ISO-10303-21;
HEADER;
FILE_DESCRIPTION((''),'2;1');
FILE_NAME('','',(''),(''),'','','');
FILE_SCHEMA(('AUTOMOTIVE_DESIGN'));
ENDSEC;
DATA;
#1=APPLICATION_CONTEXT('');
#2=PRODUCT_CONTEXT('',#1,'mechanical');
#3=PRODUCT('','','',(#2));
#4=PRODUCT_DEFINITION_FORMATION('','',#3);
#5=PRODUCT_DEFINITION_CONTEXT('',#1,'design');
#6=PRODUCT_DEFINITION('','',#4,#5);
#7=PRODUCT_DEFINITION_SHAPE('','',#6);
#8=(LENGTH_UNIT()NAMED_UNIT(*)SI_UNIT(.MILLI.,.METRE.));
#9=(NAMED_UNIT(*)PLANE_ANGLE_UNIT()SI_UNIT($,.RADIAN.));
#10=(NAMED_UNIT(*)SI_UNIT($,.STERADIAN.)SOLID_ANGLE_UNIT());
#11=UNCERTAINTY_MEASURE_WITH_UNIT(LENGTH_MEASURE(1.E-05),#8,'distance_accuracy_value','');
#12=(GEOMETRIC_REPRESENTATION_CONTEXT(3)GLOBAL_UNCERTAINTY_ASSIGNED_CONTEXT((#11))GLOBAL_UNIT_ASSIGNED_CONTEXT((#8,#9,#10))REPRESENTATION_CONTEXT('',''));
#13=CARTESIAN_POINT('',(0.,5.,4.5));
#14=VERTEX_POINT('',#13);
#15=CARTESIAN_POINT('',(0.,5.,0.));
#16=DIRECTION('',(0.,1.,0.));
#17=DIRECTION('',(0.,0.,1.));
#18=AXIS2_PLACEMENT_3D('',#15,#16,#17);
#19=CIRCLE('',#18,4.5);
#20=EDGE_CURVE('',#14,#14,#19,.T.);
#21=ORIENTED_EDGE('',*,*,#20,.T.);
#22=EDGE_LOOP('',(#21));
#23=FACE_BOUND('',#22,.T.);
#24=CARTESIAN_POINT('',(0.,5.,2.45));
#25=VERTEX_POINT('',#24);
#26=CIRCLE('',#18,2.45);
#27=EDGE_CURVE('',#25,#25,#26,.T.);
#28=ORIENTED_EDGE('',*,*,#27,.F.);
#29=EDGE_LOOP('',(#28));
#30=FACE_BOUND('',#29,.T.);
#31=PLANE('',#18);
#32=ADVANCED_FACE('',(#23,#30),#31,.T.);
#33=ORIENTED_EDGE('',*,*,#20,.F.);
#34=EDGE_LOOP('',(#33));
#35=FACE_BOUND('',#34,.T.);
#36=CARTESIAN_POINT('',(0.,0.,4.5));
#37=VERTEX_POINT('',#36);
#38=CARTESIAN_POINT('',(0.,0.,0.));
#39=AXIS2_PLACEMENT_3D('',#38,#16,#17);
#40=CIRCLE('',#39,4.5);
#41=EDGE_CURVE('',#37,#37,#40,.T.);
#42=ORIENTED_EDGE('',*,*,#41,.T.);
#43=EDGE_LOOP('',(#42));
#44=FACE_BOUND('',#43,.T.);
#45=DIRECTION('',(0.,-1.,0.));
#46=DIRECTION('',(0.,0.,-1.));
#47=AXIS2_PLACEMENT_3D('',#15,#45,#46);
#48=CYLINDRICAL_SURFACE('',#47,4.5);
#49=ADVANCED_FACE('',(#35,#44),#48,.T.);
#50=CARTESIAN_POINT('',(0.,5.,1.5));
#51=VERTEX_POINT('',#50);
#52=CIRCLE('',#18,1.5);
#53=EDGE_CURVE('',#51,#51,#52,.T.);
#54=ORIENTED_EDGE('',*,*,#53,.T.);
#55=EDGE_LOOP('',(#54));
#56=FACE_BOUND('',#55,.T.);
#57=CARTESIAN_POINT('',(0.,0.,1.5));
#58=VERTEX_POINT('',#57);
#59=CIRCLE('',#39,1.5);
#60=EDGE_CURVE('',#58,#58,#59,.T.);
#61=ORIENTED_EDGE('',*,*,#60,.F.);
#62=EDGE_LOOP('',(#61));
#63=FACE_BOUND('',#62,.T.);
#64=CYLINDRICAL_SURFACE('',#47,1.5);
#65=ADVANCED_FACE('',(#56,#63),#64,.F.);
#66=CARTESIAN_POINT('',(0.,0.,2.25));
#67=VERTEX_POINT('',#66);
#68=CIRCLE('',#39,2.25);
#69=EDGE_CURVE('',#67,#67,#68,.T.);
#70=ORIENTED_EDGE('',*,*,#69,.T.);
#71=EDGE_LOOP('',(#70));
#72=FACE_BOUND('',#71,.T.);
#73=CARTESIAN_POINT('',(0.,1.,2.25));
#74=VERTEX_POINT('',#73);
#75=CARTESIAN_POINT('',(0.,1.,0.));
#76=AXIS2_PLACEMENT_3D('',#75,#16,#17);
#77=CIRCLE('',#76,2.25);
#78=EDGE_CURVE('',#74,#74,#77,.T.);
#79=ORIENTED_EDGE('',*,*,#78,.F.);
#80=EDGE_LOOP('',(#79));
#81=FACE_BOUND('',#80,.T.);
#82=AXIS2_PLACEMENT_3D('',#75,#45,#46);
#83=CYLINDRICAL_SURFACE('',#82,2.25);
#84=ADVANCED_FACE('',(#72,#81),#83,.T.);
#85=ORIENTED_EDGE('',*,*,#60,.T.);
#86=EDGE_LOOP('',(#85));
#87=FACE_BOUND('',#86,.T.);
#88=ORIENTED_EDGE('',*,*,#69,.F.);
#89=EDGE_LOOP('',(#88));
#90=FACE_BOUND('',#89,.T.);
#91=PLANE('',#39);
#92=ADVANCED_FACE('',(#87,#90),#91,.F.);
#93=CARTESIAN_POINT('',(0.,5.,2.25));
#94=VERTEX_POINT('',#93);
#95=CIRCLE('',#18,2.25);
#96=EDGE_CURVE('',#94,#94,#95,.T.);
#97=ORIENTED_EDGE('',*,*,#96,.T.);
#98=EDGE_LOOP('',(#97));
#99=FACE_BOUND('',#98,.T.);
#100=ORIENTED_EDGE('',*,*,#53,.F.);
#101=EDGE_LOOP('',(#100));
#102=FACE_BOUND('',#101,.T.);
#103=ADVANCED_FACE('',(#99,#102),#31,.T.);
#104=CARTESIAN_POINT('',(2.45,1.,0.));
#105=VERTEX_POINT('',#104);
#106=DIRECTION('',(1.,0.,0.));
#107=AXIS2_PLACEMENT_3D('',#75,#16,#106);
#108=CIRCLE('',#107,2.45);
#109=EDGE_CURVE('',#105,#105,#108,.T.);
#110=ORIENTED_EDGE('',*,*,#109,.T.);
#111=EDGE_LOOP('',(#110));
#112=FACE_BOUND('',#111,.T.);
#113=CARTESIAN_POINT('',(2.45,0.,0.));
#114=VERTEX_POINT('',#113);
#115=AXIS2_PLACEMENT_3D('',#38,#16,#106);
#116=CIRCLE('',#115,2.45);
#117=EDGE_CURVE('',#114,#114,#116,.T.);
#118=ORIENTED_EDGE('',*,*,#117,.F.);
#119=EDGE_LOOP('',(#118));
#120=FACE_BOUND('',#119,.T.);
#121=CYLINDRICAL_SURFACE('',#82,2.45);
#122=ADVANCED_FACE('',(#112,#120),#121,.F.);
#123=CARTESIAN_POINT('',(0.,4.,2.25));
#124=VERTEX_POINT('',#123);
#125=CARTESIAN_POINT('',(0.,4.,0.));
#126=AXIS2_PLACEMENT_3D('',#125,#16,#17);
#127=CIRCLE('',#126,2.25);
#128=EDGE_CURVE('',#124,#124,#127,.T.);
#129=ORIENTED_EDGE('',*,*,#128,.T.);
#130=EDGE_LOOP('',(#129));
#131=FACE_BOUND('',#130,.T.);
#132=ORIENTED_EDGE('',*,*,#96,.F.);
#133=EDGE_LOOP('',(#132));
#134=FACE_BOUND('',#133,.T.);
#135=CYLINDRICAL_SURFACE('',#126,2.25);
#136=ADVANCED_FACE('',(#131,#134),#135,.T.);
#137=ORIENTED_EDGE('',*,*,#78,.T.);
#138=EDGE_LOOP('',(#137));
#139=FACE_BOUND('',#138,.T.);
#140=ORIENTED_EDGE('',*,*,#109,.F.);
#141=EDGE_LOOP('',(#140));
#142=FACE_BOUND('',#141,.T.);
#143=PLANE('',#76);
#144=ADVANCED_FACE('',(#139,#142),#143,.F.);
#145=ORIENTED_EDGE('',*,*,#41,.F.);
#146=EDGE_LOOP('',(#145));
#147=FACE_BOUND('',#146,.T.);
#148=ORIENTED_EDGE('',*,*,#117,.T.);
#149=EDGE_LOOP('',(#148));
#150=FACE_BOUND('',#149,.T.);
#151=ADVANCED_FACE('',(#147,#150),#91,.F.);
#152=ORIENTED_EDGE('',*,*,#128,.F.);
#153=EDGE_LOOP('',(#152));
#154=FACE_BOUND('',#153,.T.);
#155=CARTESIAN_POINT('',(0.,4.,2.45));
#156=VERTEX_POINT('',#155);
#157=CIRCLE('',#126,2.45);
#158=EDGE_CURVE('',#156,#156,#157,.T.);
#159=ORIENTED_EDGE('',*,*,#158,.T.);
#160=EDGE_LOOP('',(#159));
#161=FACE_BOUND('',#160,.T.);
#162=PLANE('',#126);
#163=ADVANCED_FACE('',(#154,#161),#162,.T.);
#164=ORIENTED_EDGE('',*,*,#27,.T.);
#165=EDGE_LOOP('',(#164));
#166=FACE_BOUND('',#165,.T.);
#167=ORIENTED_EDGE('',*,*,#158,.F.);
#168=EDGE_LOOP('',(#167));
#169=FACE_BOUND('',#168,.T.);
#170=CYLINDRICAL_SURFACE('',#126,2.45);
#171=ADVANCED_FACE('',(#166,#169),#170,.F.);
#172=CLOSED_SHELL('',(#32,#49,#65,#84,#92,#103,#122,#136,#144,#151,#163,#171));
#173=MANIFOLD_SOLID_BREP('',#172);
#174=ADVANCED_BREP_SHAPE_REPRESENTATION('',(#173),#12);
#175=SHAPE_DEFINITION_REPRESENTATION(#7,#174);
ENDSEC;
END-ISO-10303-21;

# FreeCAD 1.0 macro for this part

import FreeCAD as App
import Part
import Sketcher

V = App.Vector
Q = App.Units.Quantity

doc = App.newDocument("Part")
params = doc.addObject("Spreadsheet::Sheet", "Params")
for row, (alias, value) in enumerate([
    ("sketch1_diameter", "9 mm"),
    ("sketch1_diameter2", "3 mm"),
    ("pad1_length", "5 mm"),
    ("sketch2_diameter", "4.9 mm"),
    ("sketch2_diameter2", "4.5 mm"),
    ("pocket1_length", "1 mm"),
    ("sketch3_diameter", "4.9 mm"),
    ("sketch3_diameter2", "4.5 mm"),
    ("pocket2_length", "1 mm"),
], start=1):
    params.set(f"A{row}", alias)
    params.set(f"B{row}", "=" + value)
    params.setAlias(f"B{row}", alias)

body = doc.addObject("PartDesign::Body", "Body")

# Sketch on XZ plane
sketch1 = doc.addObject("Sketcher::SketchObject", "Sketch")
body.addObject(sketch1)
sketch1.AttachmentSupport = (doc.XZ_Plane, [""])
sketch1.MapMode = "FlatFace"
sketch1.addGeometry(Part.Circle(V(0, 0, 0), V(0, 0, 1), 4.5), False)
sketch1.addGeometry(Part.Circle(V(0, 0, 0), V(0, 0, 1), 1.5), False)
sketch1.addConstraint(Sketcher.Constraint("Coincident", 0, 3, -1, 1))
sketch1.addConstraint(Sketcher.Constraint("Coincident", 1, 3, -1, 1))
sketch1.addConstraint(Sketcher.Constraint("Diameter", 0, Q("9 mm")))
sketch1.addConstraint(Sketcher.Constraint("Diameter", 1, Q("3 mm")))
sketch1.setExpression("Constraints[2]", "Params.sketch1_diameter")
sketch1.setExpression("Constraints[3]", "Params.sketch1_diameter2")
pad1 = doc.addObject("PartDesign::Pad", "Pad")
body.addObject(pad1)
pad1.Profile = sketch1
pad1.setExpression("Length", "Params.pad1_length")
pad1.Reversed = True

# Sketch on XZ plane
sketch2 = doc.addObject("Sketcher::SketchObject", "Sketch001")
body.addObject(sketch2)
sketch2.AttachmentSupport = (doc.XZ_Plane, [""])
sketch2.MapMode = "FlatFace"
sketch2.addGeometry(Part.Circle(V(0, 0, 0), V(0, 0, 1), 2.45), False)
sketch2.addGeometry(Part.Circle(V(0, 0, 0), V(0, 0, 1), 2.25), False)
sketch2.addConstraint(Sketcher.Constraint("Coincident", 0, 3, -1, 1))
sketch2.addConstraint(Sketcher.Constraint("Coincident", 1, 3, -1, 1))
sketch2.addConstraint(Sketcher.Constraint("Diameter", 0, Q("4.9 mm")))
sketch2.addConstraint(Sketcher.Constraint("Diameter", 1, Q("4.5 mm")))
sketch2.setExpression("Constraints[2]", "Params.sketch2_diameter")
sketch2.setExpression("Constraints[3]", "Params.sketch2_diameter2")
pocket1 = doc.addObject("PartDesign::Pocket", "Pocket")
body.addObject(pocket1)
pocket1.Profile = sketch2
pocket1.setExpression("Length", "Params.pocket1_length")

# Sketch on XZ plane
sketch3 = doc.addObject("Sketcher::SketchObject", "Sketch002")
body.addObject(sketch3)
sketch3.AttachmentSupport = (doc.XZ_Plane, [""])
sketch3.MapMode = "FlatFace"
sketch3.AttachmentOffset = App.Placement(V(0, 0, -4), App.Rotation())
sketch3.addGeometry(Part.Circle(V(0, 0, 0), V(0, 0, 1), 2.45), False)
sketch3.addGeometry(Part.Circle(V(0, 0, 0), V(0, 0, 1), 2.25), False)
sketch3.addConstraint(Sketcher.Constraint("Coincident", 0, 3, -1, 1))
sketch3.addConstraint(Sketcher.Constraint("Coincident", 1, 3, -1, 1))
sketch3.addConstraint(Sketcher.Constraint("Diameter", 0, Q("4.9 mm")))
sketch3.addConstraint(Sketcher.Constraint("Diameter", 1, Q("4.5 mm")))
sketch3.setExpression("Constraints[2]", "Params.sketch3_diameter")
sketch3.setExpression("Constraints[3]", "Params.sketch3_diameter2")
pocket2 = doc.addObject("PartDesign::Pocket", "Pocket001")
body.addObject(pocket2)
pocket2.Profile = sketch3
pocket2.setExpression("Length", "Params.pocket2_length")

doc.recompute()
